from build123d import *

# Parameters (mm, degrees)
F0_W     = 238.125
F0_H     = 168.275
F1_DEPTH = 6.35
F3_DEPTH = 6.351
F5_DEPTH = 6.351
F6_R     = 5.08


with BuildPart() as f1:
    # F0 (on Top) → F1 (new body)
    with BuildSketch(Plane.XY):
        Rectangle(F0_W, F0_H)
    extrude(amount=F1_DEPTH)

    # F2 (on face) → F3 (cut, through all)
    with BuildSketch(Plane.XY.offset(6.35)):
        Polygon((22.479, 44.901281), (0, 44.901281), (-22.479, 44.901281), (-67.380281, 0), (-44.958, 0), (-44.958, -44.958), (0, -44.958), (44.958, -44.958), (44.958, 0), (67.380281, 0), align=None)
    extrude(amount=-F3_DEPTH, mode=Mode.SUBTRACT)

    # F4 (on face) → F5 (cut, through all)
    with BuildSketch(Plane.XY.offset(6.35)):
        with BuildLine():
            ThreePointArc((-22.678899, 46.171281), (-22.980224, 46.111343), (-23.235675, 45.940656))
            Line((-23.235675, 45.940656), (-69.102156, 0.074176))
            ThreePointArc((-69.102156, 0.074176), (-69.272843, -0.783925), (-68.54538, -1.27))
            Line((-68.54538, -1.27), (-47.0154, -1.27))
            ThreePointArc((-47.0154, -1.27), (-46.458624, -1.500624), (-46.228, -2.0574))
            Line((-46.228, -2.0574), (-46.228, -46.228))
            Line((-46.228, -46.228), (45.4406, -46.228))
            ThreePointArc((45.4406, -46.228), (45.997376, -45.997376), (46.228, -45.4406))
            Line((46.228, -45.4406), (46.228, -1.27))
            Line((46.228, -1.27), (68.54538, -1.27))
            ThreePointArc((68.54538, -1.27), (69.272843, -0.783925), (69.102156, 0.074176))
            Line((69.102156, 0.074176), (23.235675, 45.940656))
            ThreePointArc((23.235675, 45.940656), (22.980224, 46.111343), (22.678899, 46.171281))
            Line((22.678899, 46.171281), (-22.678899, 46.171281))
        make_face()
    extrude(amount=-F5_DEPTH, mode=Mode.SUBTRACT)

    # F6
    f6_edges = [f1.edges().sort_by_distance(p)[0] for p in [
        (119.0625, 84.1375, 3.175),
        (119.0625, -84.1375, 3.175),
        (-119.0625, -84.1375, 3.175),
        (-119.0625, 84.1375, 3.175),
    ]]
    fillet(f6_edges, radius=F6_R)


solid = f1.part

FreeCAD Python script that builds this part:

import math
import FreeCAD as App
import Part
import Sketcher
Q = App.Units.Quantity


def edges_at(feature, points):
    """Names of the edges that pass closest to the given points."""
    edges = feature.Shape.Edges
    near = lambda p: min(range(len(edges)), key=lambda i: edges[i].distToShape(Part.Vertex(*p))[0])
    return sorted({f"Edge{near(p) + 1}" for p in points})


def add_polygon(sketch, points):
    """Adds a closed chain of lines whose ends are joined by coincident constraints."""
    first, n = sketch.GeometryCount, len(points)
    for a, b in zip(points, points[1:] + points[:1]):
        sketch.addGeometry(Part.LineSegment(App.Vector(*a, 0), App.Vector(*b, 0)), False)
    for i in range(n):
        sketch.addConstraint(Sketcher.Constraint("Coincident", first + i, 2, first + (i + 1) % n, 1))

doc = App.newDocument("Part")
body = doc.addObject("PartDesign::Body", "Body")

# Sketch on XY plane
sketch1 = body.newObject("Sketcher::SketchObject", "Sketch")
sketch1.AttachmentSupport = (doc.getObject("XY_Plane"), [""])
sketch1.MapMode = "FlatFace"
add_polygon(sketch1, [(-119.0625, 84.1375), (-119.0625, -84.1375), (119.0625, -84.1375), (119.0625, 84.1375)])  # lines 0-3
sketch1.addConstraint(Sketcher.Constraint("Vertical", 0))
sketch1.addConstraint(Sketcher.Constraint("Horizontal", 1))
sketch1.addConstraint(Sketcher.Constraint("Vertical", 2))
sketch1.addConstraint(Sketcher.Constraint("Horizontal", 3))
sketch1.addConstraint(Sketcher.Constraint("Symmetric", 0, 2, 2, 2, -1, 1))
sketch1.addConstraint(Sketcher.Constraint("DistanceX", 1, 1, 1, 2, Q("9.375 in")))
sketch1.addConstraint(Sketcher.Constraint("DistanceY", 0, 2, 0, 1, Q("6.625 in")))
pad1 = body.newObject("PartDesign::Pad", "Pad")
pad1.Profile = sketch1
pad1.Length = Q("0.25 in")

# Sketch on XY plane
sketch2 = body.newObject("Sketcher::SketchObject", "Sketch001")
sketch2.AttachmentSupport = (doc.getObject("XY_Plane"), [""])
sketch2.MapMode = "FlatFace"
sketch2.AttachmentOffset = App.Placement(App.Vector(0, 0, 0.25 * 25.4), App.Rotation())
add_polygon(sketch2, [(22.479, 44.901281), (-22.479, 44.901281), (-67.380281, 0), (-44.958, 0), (-44.958, -44.958), (44.958, -44.958), (44.958, 0), (67.380281, 0)])  # lines 0-7
sketch2.addConstraint(Sketcher.Constraint("Horizontal", 0))
sketch2.addConstraint(Sketcher.Constraint("Horizontal", 2))
sketch2.addConstraint(Sketcher.Constraint("Vertical", 3))
sketch2.addConstraint(Sketcher.Constraint("Horizontal", 4))
sketch2.addConstraint(Sketcher.Constraint("Vertical", 5))
sketch2.addConstraint(Sketcher.Constraint("Horizontal", 6))
sketch2.addConstraint(Sketcher.Constraint("Symmetric", 2, 2, 5, 2, -1, 1))
sketch2.addConstraint(Sketcher.Constraint("Symmetric", 1, 2, 6, 2, -2))
sketch2.addConstraint(Sketcher.Constraint("Perpendicular", 1, 7))
sketch2.addConstraint(Sketcher.Constraint("Equal", 0, 3))
sketch2.addConstraint(Sketcher.Constraint("Equal", 1, 7))
sketch2.addConstraint(Sketcher.Constraint("Distance", 1, Q("2.5 in")))
sketch2.addConstraint(Sketcher.Constraint("DistanceX", 0, 2, 0, 1, Q("1.77 in")))
sketch2.addConstraint(Sketcher.Constraint("DistanceX", 4, 1, 4, 2, Q("3.54 in")))
pocket1 = body.newObject("PartDesign::Pocket", "Pocket")
pocket1.Profile = sketch2
pocket1.Type = "ThroughAll"

# Sketch on XY plane
sketch3 = body.newObject("Sketcher::SketchObject", "Sketch002")
sketch3.AttachmentSupport = (doc.getObject("XY_Plane"), [""])
sketch3.MapMode = "FlatFace"
sketch3.AttachmentOffset = App.Placement(App.Vector(0, 0, 0.25 * 25.4), App.Rotation())
sketch3.addGeometry(Part.ArcOfCircle(Part.Circle(App.Vector(-22.678896, 45.383876, 0), App.Vector(0, 0, 1), 0.787405), math.radians(90.000191), math.radians(134.999954)), False)
sketch3.addGeometry(Part.LineSegment(App.Vector(-23.235675, 45.940656, 0), App.Vector(-69.102156, 0.074176, 0)), False)
sketch3.addGeometry(Part.ArcOfCircle(Part.Circle(App.Vector(-68.54538, -0.4826, 0), App.Vector(0, 0, 1), 0.7874), math.radians(134.999983), math.radians(270.000022)), False)
sketch3.addGeometry(Part.LineSegment(App.Vector(-68.54538, -1.27, 0), App.Vector(-47.0154, -1.27, 0)), False)
sketch3.addGeometry(Part.ArcOfCircle(Part.Circle(App.Vector(-47.0154, -2.0574, 0), App.Vector(0, 0, 1), 0.7874), math.radians(-0.00003), math.radians(90.00003)), False)
sketch3.addGeometry(Part.LineSegment(App.Vector(-46.228, -2.0574, 0), App.Vector(-46.228, -46.228, 0)), False)
sketch3.addGeometry(Part.LineSegment(App.Vector(-46.228, -46.228, 0), App.Vector(45.4406, -46.228, 0)), False)
sketch3.addGeometry(Part.ArcOfCircle(Part.Circle(App.Vector(45.4406, -45.4406, 0), App.Vector(0, 0, 1), 0.7874), math.radians(-90.00003), math.radians(0.00003)), False)
sketch3.addGeometry(Part.LineSegment(App.Vector(46.228, -45.4406, 0), App.Vector(46.228, -1.27, 0)), False)
sketch3.addGeometry(Part.LineSegment(App.Vector(46.228, -1.27, 0), App.Vector(68.54538, -1.27, 0)), False)
sketch3.addGeometry(Part.ArcOfCircle(Part.Circle(App.Vector(68.54538, -0.4826, 0), App.Vector(0, 0, 1), 0.7874), math.radians(-90.000022), math.radians(45.000017)), False)
sketch3.addGeometry(Part.LineSegment(App.Vector(69.102156, 0.074176, 0), App.Vector(23.235675, 45.940656, 0)), False)
sketch3.addGeometry(Part.ArcOfCircle(Part.Circle(App.Vector(22.678896, 45.383876, 0), App.Vector(0, 0, 1), 0.787405), math.radians(45.000046), math.radians(89.999809)), False)
sketch3.addGeometry(Part.LineSegment(App.Vector(22.678899, 46.171281, 0), App.Vector(-22.678899, 46.171281, 0)), False)
sketch3.addConstraint(Sketcher.Constraint("Tangent", 0, 2, 1, 1))
sketch3.addConstraint(Sketcher.Constraint("Tangent", 1, 2, 2, 1))
sketch3.addConstraint(Sketcher.Constraint("Tangent", 2, 2, 3, 1))
sketch3.addConstraint(Sketcher.Constraint("Tangent", 3, 2, 4, 2))
sketch3.addConstraint(Sketcher.Constraint("Tangent", 4, 1, 5, 1))
sketch3.addConstraint(Sketcher.Constraint("Coincident", 5, 2, 6, 1))
sketch3.addConstraint(Sketcher.Constraint("Tangent", 6, 2, 7, 1))
sketch3.addConstraint(Sketcher.Constraint("Tangent", 7, 2, 8, 1))
sketch3.addConstraint(Sketcher.Constraint("Coincident", 8, 2, 9, 1))
sketch3.addConstraint(Sketcher.Constraint("Tangent", 9, 2, 10, 1))
sketch3.addConstraint(Sketcher.Constraint("Tangent", 10, 2, 11, 1))
sketch3.addConstraint(Sketcher.Constraint("Tangent", 11, 2, 12, 1))
sketch3.addConstraint(Sketcher.Constraint("Coincident", 12, 2, 13, 1))
sketch3.addConstraint(Sketcher.Constraint("Coincident", 13, 2, 0, 1))
sketch3.addConstraint(Sketcher.Constraint("Horizontal", 3))
sketch3.addConstraint(Sketcher.Constraint("Vertical", 5))
sketch3.addConstraint(Sketcher.Constraint("Horizontal", 6))
sketch3.addConstraint(Sketcher.Constraint("Vertical", 8))
sketch3.addConstraint(Sketcher.Constraint("Horizontal", 9))
sketch3.addConstraint(Sketcher.Constraint("Horizontal", 13))
sketch3.addConstraint(Sketcher.Constraint("Equal", 2, 4))
sketch3.addConstraint(Sketcher.Constraint("Equal", 4, 7))
sketch3.addConstraint(Sketcher.Constraint("Equal", 7, 10))
sketch3.addConstraint(Sketcher.Constraint("Equal", 0, 12))
sketch3.addConstraint(Sketcher.Constraint("Symmetric", 2, 3, 10, 3, -2))
sketch3.addConstraint(Sketcher.Constraint("Perpendicular", 1, 11))
sketch3.addConstraint(Sketcher.Constraint("Horizontal", 1, 2, 10, 2))
sketch3.addConstraint(Sketcher.Constraint("Radius", 0, Q("0.0310002 in")))
sketch3.addConstraint(Sketcher.Constraint("Radius", 2, Q("0.031 in")))
sketch3.addConstraint(Sketcher.Constraint("DistanceX", 6, 1, 6, 2, Q("3.609 in")))
sketch3.addConstraint(Sketcher.Constraint("DistanceY", 5, 2, 5, 1, Q("1.739 in")))
sketch3.addConstraint(Sketcher.Constraint("DistanceY", 2, 2, -1, 1, Q("0.05 in")))
sketch3.addConstraint(Sketcher.Constraint("DistanceX", 4, 1, -1, 1, Q("1.82 in")))
sketch3.addConstraint(Sketcher.Constraint("DistanceX", 13, 2, 13, 1, 45.357798))
sketch3.addConstraint(Sketcher.Constraint("Distance", 1, 64.864999))
sketch3.addConstraint(Sketcher.Constraint("DistanceX", 3, 1, 3, 2, 21.52998))
sketch3.addConstraint(Sketcher.Constraint("DistanceX", -1, 1, 12, 2, 22.678899))
pocket2 = body.newObject("PartDesign::Pocket", "Pocket001")
pocket2.Profile = sketch3
pocket2.Type = "ThroughAll"
doc.recompute()

fillet = body.newObject("PartDesign::Fillet", "Fillet")
fillet.Base = (pocket2, edges_at(pocket2, [
    (119.062, 84.138, 3.175),
    (119.062, -84.138, 3.175),
    (-119.062, -84.138, 3.175),
    (-119.062, 84.138, 3.175),
]))
fillet.Radius = Q("0.2 in")

doc.recompute()
